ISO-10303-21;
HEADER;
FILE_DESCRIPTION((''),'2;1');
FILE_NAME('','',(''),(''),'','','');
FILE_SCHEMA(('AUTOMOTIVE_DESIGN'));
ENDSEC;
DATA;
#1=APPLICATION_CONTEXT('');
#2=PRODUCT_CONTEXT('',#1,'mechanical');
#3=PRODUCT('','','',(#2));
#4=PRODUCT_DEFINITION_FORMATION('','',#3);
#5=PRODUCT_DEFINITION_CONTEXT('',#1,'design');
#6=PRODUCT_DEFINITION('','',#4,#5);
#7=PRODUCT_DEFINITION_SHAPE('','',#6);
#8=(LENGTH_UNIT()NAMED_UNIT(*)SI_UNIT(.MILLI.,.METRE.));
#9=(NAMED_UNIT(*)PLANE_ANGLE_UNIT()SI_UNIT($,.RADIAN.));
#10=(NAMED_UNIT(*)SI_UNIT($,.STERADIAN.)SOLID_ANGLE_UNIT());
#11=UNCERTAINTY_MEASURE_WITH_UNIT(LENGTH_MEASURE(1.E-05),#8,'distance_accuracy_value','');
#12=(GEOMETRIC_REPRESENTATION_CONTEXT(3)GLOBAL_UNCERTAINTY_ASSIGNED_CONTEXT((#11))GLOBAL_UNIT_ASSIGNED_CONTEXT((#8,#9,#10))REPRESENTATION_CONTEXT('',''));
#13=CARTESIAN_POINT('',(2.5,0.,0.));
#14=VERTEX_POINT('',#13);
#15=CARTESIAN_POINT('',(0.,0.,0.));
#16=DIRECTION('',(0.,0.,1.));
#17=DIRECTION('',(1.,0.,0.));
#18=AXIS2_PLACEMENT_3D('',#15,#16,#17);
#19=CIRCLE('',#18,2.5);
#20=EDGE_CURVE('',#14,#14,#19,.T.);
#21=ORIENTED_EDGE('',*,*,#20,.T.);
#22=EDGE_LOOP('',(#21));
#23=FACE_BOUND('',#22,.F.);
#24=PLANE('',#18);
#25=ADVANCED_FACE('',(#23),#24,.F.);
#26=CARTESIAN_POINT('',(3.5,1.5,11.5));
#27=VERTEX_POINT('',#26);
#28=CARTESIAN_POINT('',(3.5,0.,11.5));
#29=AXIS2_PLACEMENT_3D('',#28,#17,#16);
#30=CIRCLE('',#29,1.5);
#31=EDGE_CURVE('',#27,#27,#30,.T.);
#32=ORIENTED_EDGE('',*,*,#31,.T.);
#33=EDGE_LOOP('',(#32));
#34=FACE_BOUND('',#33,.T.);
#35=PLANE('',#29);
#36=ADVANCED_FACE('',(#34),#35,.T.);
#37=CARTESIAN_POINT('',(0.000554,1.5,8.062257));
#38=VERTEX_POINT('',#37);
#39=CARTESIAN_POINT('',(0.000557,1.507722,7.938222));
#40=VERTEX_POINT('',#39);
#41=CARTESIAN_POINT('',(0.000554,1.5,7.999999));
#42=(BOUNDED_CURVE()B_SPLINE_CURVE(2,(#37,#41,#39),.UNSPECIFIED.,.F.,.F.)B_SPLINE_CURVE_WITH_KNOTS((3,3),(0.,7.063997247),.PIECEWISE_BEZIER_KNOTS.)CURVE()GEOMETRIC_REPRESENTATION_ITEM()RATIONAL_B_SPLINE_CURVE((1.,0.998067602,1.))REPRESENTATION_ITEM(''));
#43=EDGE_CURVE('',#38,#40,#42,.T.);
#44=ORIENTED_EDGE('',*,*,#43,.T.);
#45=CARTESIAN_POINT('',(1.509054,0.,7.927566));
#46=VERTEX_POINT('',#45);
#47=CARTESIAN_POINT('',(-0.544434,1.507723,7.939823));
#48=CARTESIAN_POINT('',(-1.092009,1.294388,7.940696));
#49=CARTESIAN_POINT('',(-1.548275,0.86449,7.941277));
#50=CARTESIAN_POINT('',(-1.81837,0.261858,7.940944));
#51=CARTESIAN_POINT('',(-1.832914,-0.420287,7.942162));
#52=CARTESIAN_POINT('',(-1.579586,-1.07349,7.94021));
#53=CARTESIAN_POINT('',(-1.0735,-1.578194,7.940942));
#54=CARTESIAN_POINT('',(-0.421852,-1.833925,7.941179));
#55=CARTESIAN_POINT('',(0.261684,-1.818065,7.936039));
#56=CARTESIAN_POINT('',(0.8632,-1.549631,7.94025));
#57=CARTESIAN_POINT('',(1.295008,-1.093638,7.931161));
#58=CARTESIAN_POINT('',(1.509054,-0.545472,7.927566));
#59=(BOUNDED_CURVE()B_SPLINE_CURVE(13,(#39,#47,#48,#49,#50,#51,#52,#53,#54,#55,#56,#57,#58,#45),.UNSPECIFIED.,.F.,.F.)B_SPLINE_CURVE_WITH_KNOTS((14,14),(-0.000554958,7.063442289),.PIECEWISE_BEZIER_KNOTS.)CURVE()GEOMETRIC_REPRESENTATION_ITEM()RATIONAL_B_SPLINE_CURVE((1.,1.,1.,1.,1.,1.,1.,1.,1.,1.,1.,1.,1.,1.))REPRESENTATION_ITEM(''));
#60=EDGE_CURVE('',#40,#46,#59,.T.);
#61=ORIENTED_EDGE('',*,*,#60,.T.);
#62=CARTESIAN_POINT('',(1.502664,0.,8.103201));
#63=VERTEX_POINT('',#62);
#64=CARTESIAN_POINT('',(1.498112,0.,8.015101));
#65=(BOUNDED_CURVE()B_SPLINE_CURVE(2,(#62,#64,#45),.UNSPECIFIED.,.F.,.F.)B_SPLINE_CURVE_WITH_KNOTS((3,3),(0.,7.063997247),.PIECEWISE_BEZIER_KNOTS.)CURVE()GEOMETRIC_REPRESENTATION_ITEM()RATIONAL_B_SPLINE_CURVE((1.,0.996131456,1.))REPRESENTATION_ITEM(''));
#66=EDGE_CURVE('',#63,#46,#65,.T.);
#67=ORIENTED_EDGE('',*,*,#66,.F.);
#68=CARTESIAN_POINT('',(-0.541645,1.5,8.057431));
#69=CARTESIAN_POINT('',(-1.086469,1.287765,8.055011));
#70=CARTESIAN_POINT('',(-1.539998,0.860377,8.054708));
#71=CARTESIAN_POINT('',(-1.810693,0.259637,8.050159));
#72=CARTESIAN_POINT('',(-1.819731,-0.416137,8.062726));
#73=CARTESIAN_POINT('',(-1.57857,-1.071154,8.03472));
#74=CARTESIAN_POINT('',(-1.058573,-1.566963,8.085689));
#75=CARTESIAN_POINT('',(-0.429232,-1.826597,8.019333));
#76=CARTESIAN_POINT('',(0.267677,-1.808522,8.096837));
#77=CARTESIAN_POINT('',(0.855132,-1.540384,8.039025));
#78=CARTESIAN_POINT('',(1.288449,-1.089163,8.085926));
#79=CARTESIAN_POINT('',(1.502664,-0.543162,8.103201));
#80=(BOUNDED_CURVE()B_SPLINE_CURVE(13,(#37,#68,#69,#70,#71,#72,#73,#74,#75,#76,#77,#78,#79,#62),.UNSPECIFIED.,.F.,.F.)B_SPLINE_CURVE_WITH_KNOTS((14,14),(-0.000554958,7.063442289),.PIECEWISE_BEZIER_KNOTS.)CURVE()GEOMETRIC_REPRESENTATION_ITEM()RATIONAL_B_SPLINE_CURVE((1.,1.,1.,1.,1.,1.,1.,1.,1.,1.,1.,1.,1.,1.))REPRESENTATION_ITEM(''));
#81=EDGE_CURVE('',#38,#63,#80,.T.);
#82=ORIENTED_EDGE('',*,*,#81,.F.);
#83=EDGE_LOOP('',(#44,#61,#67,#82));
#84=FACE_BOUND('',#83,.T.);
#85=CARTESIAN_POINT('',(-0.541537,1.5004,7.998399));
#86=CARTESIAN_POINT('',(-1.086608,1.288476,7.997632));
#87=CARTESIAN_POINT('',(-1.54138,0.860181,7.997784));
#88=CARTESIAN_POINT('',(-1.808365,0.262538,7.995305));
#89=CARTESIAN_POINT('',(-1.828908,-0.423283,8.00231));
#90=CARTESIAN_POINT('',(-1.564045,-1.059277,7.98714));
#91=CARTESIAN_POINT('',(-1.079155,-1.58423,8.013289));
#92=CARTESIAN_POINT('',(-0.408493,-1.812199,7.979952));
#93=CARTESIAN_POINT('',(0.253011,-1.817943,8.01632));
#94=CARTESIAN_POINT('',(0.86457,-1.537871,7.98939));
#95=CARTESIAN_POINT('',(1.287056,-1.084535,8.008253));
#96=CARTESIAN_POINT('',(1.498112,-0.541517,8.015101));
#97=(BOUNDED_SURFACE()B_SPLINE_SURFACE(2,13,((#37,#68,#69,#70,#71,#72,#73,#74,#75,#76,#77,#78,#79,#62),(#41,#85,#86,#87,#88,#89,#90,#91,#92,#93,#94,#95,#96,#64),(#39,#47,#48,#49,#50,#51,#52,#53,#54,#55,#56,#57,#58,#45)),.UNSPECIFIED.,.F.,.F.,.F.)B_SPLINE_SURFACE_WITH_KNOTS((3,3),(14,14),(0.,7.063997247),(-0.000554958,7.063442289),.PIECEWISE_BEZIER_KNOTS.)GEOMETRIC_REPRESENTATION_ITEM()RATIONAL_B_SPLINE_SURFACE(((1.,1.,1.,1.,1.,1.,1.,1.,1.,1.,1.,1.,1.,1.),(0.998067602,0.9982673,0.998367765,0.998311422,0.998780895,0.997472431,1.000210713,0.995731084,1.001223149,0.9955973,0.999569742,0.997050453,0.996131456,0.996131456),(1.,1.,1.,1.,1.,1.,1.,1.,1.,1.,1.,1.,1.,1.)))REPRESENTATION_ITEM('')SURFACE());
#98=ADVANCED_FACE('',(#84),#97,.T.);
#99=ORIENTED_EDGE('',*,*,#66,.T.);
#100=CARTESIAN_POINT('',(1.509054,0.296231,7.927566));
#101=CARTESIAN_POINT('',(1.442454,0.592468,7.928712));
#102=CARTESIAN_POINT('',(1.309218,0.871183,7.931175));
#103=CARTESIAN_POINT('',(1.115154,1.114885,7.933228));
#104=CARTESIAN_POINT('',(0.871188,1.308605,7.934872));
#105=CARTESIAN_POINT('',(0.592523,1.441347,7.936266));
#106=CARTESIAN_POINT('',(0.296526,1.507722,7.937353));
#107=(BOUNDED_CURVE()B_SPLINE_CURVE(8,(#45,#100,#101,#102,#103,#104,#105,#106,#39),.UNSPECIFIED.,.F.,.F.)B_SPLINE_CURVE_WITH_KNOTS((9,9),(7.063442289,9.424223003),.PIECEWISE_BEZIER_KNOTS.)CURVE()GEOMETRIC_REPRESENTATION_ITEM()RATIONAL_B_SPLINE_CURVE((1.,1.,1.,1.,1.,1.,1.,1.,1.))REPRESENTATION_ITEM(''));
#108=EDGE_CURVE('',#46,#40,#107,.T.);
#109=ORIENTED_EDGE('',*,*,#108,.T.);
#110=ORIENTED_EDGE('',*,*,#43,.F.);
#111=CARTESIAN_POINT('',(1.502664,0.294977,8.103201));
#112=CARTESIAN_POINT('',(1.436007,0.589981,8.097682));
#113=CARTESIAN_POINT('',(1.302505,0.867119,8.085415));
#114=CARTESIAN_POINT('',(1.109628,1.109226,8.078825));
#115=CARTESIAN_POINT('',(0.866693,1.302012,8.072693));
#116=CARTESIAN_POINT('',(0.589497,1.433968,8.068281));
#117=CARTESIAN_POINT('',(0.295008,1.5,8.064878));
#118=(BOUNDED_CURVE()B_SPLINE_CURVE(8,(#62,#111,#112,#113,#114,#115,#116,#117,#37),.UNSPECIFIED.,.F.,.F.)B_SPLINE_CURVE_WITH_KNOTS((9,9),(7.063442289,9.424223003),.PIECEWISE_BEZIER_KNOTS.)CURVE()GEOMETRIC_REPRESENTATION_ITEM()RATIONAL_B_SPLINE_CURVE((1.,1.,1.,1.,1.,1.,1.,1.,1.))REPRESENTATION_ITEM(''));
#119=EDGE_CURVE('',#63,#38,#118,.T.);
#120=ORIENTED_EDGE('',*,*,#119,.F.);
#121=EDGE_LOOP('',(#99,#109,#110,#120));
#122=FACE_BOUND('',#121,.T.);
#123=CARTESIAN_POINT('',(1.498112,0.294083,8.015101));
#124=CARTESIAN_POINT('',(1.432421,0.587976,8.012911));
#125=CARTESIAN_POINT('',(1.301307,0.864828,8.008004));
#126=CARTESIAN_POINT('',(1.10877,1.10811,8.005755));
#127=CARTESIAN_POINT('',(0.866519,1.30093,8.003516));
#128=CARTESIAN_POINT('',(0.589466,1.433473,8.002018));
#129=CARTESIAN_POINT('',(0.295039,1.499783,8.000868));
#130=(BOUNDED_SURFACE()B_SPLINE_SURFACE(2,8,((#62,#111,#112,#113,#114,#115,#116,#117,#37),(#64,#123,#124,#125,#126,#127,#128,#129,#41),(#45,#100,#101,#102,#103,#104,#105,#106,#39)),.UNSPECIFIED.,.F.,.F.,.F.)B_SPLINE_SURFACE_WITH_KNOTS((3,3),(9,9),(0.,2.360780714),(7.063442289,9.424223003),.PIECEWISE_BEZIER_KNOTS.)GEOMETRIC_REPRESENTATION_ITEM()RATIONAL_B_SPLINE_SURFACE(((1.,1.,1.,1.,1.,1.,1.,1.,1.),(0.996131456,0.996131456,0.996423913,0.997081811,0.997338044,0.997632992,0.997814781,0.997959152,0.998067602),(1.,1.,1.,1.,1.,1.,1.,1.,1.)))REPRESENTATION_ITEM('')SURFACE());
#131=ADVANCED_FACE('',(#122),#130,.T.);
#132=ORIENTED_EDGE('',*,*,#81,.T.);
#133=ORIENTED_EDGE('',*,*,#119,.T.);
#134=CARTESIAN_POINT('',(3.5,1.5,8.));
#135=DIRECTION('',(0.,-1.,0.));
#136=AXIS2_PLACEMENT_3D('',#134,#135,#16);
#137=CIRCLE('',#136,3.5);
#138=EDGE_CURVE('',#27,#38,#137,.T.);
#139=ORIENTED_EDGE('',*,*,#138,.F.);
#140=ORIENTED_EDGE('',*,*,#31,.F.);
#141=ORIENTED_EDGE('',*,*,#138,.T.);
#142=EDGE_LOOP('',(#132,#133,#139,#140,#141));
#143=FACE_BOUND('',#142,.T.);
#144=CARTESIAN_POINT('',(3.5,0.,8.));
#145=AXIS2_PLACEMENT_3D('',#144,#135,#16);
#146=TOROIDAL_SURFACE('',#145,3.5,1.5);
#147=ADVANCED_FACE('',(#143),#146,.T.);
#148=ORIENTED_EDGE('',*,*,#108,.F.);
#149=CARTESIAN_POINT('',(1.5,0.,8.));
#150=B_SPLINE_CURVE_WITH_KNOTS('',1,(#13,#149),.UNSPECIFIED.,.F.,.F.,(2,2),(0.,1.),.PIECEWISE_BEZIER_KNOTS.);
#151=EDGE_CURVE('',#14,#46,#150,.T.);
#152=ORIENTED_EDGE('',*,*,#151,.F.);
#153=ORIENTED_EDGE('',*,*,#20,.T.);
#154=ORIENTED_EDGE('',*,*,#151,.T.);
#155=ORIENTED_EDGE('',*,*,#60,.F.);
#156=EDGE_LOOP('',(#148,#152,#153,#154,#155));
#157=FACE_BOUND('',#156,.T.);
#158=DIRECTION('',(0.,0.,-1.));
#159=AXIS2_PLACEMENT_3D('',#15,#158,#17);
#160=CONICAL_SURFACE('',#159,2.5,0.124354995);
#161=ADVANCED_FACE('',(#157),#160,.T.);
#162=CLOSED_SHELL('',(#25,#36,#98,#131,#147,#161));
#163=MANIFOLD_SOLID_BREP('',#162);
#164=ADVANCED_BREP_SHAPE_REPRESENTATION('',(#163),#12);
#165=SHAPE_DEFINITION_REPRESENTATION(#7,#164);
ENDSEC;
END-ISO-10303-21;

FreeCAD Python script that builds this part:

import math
import FreeCAD as App
import Part
import Sketcher
from FreeCAD import Vector


def edges_at(feature, points):
    """Names of the edges that pass closest to the given points."""
    edges = feature.Shape.Edges
    near = lambda p: min(range(len(edges)), key=lambda i: edges[i].distToShape(Part.Vertex(*p))[0])
    return sorted({f"Edge{near(p) + 1}" for p in points})

doc = App.newDocument("Part")
body = doc.addObject("PartDesign::Body", "Body")

sketch1 = doc.addObject("Sketcher::SketchObject", "Sketch")
body.addObject(sketch1)
sketch1.AttachmentSupport = (doc.XY_Plane, [""])
sketch1.MapMode = "FlatFace"
sketch1.addGeometry(Part.Circle(Vector(0, 0, 0), Vector(0, 0, 1), 2.5), False)
sketch1.addConstraint([
    Sketcher.Constraint("Coincident", 0, 3, -1, 1),
    Sketcher.Constraint("Diameter", 0, 5.0),
])

sketch2 = doc.addObject("Sketcher::SketchObject", "Sketch001")
body.addObject(sketch2)
sketch2.AttachmentSupport = (doc.XY_Plane, [""])
sketch2.MapMode = "FlatFace"
sketch2.AttachmentOffset = App.Placement(Vector(0, 0, 8), App.Rotation())
sketch2.addGeometry(Part.Circle(Vector(0, 0, 0), Vector(0, 0, 1), 1.5), False)
sketch2.addConstraint([
    Sketcher.Constraint("Coincident", 0, 3, -1, 1),
    Sketcher.Constraint("Diameter", 0, 3.0),
])

additiveloft = doc.addObject("PartDesign::AdditiveLoft", "AdditiveLoft")
body.addObject(additiveloft)
additiveloft.Profile = sketch1
additiveloft.Sections = [sketch2]

sketch3 = doc.addObject("Sketcher::SketchObject", "Sketch002")
body.addObject(sketch3)
sketch3.AttachmentSupport = (doc.YZ_Plane, [""])
sketch3.MapMode = "FlatFace"
sketch3.AttachmentOffset = App.Placement(Vector(0, 0, 3.5), App.Rotation())
sketch3.addGeometry(Part.Circle(Vector(0, 11.5, 0), Vector(0, 0, 1), 1.5), False)
sketch3.addConstraint([
    Sketcher.Constraint("PointOnObject", 0, 3, -2),
    Sketcher.Constraint("Diameter", 0, 3.0),
    Sketcher.Constraint("DistanceY", -1, 1, 0, 3, 11.5),
])

sketch4 = doc.addObject("Sketcher::SketchObject", "Sketch003")
body.addObject(sketch4)
sketch4.AttachmentSupport = (doc.XZ_Plane, [""])
sketch4.MapMode = "FlatFace"
sketch4.addGeometry(Part.ArcOfCircle(Part.Circle(Vector(3.5, 8, 0), Vector(0, 0, 1), 2.747686), math.radians(90), math.radians(180)), False)
sketch4.addConstraint([
    Sketcher.Constraint("DistanceY", -1, 1, 0, 3, 8.0),
    Sketcher.Constraint("DistanceY", -1, 1, 0, 2, 8.0),
    Sketcher.Constraint("DistanceX", -1, 1, 0, 3, 3.5),
    Sketcher.Constraint("DistanceX", -1, 1, 0, 1, 3.5),
    Sketcher.Constraint("Radius", 0, 2.747686),
])
doc.recompute()

additivepipe = doc.addObject("PartDesign::AdditivePipe", "AdditivePipe")
body.addObject(additivepipe)
additivepipe.Profile = sketch3
additivepipe.Spine = (sketch4, ["Edge1"])
doc.recompute()

fillet = doc.addObject("PartDesign::Fillet", "Fillet")
body.addObject(fillet)
fillet.Base = (additivepipe, edges_at(additivepipe, [(-1.061, -1.061, 8)]))
fillet.Radius = 1

doc.recompute()
